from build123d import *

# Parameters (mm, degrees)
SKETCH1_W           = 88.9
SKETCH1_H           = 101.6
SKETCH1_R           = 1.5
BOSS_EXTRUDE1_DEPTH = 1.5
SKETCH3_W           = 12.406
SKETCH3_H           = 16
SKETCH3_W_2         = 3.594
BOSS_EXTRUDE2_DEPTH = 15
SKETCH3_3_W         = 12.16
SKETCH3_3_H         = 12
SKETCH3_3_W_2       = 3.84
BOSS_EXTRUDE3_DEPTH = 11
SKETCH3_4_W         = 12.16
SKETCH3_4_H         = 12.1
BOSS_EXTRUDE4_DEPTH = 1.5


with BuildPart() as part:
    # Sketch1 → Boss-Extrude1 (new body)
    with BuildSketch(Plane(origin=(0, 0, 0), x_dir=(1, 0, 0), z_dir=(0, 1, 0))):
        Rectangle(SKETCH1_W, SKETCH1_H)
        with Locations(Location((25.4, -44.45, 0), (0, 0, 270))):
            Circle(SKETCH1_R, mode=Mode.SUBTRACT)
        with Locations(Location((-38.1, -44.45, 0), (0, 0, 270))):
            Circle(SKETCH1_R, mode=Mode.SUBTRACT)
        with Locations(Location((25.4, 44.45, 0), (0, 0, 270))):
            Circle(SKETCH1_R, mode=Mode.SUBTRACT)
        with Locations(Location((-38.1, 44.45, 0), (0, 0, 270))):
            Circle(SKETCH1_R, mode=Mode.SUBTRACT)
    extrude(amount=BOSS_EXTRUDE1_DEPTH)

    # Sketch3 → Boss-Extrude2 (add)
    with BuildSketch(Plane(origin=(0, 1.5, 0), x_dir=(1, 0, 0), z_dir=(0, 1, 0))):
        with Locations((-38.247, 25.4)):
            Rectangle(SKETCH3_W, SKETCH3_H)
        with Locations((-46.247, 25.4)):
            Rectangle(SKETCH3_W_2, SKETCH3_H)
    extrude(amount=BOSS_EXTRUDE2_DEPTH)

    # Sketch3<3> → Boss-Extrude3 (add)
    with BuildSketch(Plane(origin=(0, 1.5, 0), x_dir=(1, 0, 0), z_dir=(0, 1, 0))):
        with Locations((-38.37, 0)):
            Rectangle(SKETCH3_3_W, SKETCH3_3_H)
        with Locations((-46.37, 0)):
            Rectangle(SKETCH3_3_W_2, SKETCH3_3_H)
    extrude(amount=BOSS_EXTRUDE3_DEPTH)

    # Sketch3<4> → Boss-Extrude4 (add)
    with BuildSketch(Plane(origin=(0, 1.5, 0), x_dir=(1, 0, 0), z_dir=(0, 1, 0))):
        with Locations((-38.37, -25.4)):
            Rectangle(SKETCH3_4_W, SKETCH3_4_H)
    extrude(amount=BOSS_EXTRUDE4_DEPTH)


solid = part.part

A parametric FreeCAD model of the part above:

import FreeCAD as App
import Part
import Sketcher

V = App.Vector


def add_polygon(sketch, points):
    """Adds a closed chain of lines whose ends are joined by coincident constraints."""
    first, n = sketch.GeometryCount, len(points)
    for a, b in zip(points, points[1:] + points[:1]):
        sketch.addGeometry(Part.LineSegment(App.Vector(*a, 0), App.Vector(*b, 0)), False)
    for i in range(n):
        sketch.addConstraint(Sketcher.Constraint("Coincident", first + i, 2, first + (i + 1) % n, 1))

doc = App.newDocument("Part")
body = doc.addObject("PartDesign::Body", "Body")

sketch1 = doc.addObject("Sketcher::SketchObject", "Sketch")
body.addObject(sketch1)
sketch1.AttachmentSupport = (doc.XZ_Plane, [""])
sketch1.MapMode = "FlatFace"
add_polygon(sketch1, [(-44.5, -50.8), (-44.5, 50.8), (44.5, 50.8), (44.5, -50.8)])
sketch1.addGeometry(Part.Circle(V(-38.1, 44.5, 0), V(0, 0, 1), 1.5), False)
sketch1.addGeometry(Part.Circle(V(25.4, 44.5, 0), V(0, 0, 1), 1.5), False)
sketch1.addGeometry(Part.Circle(V(-38.1, -44.5, 0), V(0, 0, 1), 1.5), False)
sketch1.addGeometry(Part.Circle(V(25.4, -44.5, 0), V(0, 0, 1), 1.5), False)
sketch1.addConstraint(Sketcher.Constraint("Vertical", 0))
sketch1.addConstraint(Sketcher.Constraint("Horizontal", 1))
sketch1.addConstraint(Sketcher.Constraint("Vertical", 2))
sketch1.addConstraint(Sketcher.Constraint("Horizontal", 3))
sketch1.addConstraint(Sketcher.Constraint("Equal", 4, 5))
sketch1.addConstraint(Sketcher.Constraint("Equal", 5, 6))
sketch1.addConstraint(Sketcher.Constraint("Equal", 6, 7))
sketch1.addConstraint(Sketcher.Constraint("Symmetric", 0, 2, 2, 2, -1, 1))
sketch1.addConstraint(Sketcher.Constraint("Symmetric", 4, 3, 6, 3, -1))
sketch1.addConstraint(Sketcher.Constraint("Symmetric", 5, 3, 7, 3, -1))
sketch1.addConstraint(Sketcher.Constraint("Horizontal", 4, 3, 5, 3))
sketch1.addConstraint(Sketcher.Constraint("Diameter", 4, 3.0))
sketch1.addConstraint(Sketcher.Constraint("DistanceX", 1, 1, 1, 2, 88.9))
sketch1.addConstraint(Sketcher.Constraint("DistanceY", 0, 1, 0, 2, 101.6))
sketch1.addConstraint(Sketcher.Constraint("DistanceX", 4, 3, -1, 1, 38.1))
sketch1.addConstraint(Sketcher.Constraint("DistanceX", -1, 1, 5, 3, 25.4))
sketch1.addConstraint(Sketcher.Constraint("DistanceY", 6, 3, 4, 3, 88.9))
pad1 = doc.addObject("PartDesign::Pad", "Pad")
body.addObject(pad1)
pad1.Profile = sketch1
pad1.Length = 1.5
pad1.Reversed = True

sketch2 = doc.addObject("Sketcher::SketchObject", "Sketch001")
body.addObject(sketch2)
sketch2.AttachmentSupport = (doc.XZ_Plane, [""])
sketch2.MapMode = "FlatFace"
sketch2.AttachmentOffset = App.Placement(V(0, 0, -1.5), App.Rotation())
add_polygon(sketch2, [(-32, -17), (-32, -33), (-48, -33), (-48, -17)])
sketch2.addConstraint(Sketcher.Constraint("Vertical", 0))
sketch2.addConstraint(Sketcher.Constraint("Horizontal", 1))
sketch2.addConstraint(Sketcher.Constraint("Vertical", 2))
sketch2.addConstraint(Sketcher.Constraint("Horizontal", 3))
sketch2.addConstraint(Sketcher.Constraint("Equal", 3, 0))
sketch2.addConstraint(Sketcher.Constraint("DistanceX", 1, 2, 1, 1, 16.0))
sketch2.addConstraint(Sketcher.Constraint("DistanceY", 0, 2, -1, 1, 33.4))
sketch2.addConstraint(Sketcher.Constraint("DistanceX", 0, 2, -1, 1, 32.044))
pad2 = doc.addObject("PartDesign::Pad", "Pad001")
body.addObject(pad2)
pad2.Profile = sketch2
pad2.Length = 15
pad2.Reversed = True

sketch3 = doc.addObject("Sketcher::SketchObject", "Sketch002")
body.addObject(sketch3)
sketch3.AttachmentSupport = (doc.XZ_Plane, [""])
sketch3.MapMode = "FlatFace"
sketch3.AttachmentOffset = App.Placement(V(0, 0, -1.5), App.Rotation())
add_polygon(sketch3, [(-32, 6), (-32, -6), (-48, -6), (-48, 6)])
sketch3.addConstraint(Sketcher.Constraint("Vertical", 0))
sketch3.addConstraint(Sketcher.Constraint("Horizontal", 1))
sketch3.addConstraint(Sketcher.Constraint("Vertical", 2))
sketch3.addConstraint(Sketcher.Constraint("Horizontal", 3))
sketch3.addConstraint(Sketcher.Constraint("DistanceX", 1, 2, 1, 1, 16.0))
sketch3.addConstraint(Sketcher.Constraint("DistanceY", 0, 2, 0, 1, 12.0))
sketch3.addConstraint(Sketcher.Constraint("DistanceY", 0, 2, -1, 1, 6.0))
sketch3.addConstraint(Sketcher.Constraint("DistanceX", 0, 2, -1, 1, 32.29))
pad3 = doc.addObject("PartDesign::Pad", "Pad002")
body.addObject(pad3)
pad3.Profile = sketch3
pad3.Length = 11
pad3.Reversed = True

sketch4 = doc.addObject("Sketcher::SketchObject", "Sketch003")
body.addObject(sketch4)
sketch4.AttachmentSupport = (doc.XZ_Plane, [""])
sketch4.MapMode = "FlatFace"
sketch4.AttachmentOffset = App.Placement(V(0, 0, -1.5), App.Rotation())
add_polygon(sketch4, [(-44, 19), (-44, 31), (-32, 31), (-32, 19)])
sketch4.addConstraint(Sketcher.Constraint("Vertical", 0))
sketch4.addConstraint(Sketcher.Constraint("Horizontal", 1))
sketch4.addConstraint(Sketcher.Constraint("Vertical", 2))
sketch4.addConstraint(Sketcher.Constraint("Horizontal", 3))
sketch4.addConstraint(Sketcher.Constraint("DistanceY", 0, 1, 0, 2, 12.1))
sketch4.addConstraint(Sketcher.Constraint("DistanceX", 1, 1, 1, 2, 12.16))
sketch4.addConstraint(Sketcher.Constraint("DistanceX", 0, 2, -1, 1, 44.45))
sketch4.addConstraint(Sketcher.Constraint("DistanceY", -1, 1, 0, 2, 31.45))
pad4 = doc.addObject("PartDesign::Pad", "Pad003")
body.addObject(pad4)
pad4.Profile = sketch4
pad4.Length = 1.5
pad4.Reversed = True

doc.recompute()
